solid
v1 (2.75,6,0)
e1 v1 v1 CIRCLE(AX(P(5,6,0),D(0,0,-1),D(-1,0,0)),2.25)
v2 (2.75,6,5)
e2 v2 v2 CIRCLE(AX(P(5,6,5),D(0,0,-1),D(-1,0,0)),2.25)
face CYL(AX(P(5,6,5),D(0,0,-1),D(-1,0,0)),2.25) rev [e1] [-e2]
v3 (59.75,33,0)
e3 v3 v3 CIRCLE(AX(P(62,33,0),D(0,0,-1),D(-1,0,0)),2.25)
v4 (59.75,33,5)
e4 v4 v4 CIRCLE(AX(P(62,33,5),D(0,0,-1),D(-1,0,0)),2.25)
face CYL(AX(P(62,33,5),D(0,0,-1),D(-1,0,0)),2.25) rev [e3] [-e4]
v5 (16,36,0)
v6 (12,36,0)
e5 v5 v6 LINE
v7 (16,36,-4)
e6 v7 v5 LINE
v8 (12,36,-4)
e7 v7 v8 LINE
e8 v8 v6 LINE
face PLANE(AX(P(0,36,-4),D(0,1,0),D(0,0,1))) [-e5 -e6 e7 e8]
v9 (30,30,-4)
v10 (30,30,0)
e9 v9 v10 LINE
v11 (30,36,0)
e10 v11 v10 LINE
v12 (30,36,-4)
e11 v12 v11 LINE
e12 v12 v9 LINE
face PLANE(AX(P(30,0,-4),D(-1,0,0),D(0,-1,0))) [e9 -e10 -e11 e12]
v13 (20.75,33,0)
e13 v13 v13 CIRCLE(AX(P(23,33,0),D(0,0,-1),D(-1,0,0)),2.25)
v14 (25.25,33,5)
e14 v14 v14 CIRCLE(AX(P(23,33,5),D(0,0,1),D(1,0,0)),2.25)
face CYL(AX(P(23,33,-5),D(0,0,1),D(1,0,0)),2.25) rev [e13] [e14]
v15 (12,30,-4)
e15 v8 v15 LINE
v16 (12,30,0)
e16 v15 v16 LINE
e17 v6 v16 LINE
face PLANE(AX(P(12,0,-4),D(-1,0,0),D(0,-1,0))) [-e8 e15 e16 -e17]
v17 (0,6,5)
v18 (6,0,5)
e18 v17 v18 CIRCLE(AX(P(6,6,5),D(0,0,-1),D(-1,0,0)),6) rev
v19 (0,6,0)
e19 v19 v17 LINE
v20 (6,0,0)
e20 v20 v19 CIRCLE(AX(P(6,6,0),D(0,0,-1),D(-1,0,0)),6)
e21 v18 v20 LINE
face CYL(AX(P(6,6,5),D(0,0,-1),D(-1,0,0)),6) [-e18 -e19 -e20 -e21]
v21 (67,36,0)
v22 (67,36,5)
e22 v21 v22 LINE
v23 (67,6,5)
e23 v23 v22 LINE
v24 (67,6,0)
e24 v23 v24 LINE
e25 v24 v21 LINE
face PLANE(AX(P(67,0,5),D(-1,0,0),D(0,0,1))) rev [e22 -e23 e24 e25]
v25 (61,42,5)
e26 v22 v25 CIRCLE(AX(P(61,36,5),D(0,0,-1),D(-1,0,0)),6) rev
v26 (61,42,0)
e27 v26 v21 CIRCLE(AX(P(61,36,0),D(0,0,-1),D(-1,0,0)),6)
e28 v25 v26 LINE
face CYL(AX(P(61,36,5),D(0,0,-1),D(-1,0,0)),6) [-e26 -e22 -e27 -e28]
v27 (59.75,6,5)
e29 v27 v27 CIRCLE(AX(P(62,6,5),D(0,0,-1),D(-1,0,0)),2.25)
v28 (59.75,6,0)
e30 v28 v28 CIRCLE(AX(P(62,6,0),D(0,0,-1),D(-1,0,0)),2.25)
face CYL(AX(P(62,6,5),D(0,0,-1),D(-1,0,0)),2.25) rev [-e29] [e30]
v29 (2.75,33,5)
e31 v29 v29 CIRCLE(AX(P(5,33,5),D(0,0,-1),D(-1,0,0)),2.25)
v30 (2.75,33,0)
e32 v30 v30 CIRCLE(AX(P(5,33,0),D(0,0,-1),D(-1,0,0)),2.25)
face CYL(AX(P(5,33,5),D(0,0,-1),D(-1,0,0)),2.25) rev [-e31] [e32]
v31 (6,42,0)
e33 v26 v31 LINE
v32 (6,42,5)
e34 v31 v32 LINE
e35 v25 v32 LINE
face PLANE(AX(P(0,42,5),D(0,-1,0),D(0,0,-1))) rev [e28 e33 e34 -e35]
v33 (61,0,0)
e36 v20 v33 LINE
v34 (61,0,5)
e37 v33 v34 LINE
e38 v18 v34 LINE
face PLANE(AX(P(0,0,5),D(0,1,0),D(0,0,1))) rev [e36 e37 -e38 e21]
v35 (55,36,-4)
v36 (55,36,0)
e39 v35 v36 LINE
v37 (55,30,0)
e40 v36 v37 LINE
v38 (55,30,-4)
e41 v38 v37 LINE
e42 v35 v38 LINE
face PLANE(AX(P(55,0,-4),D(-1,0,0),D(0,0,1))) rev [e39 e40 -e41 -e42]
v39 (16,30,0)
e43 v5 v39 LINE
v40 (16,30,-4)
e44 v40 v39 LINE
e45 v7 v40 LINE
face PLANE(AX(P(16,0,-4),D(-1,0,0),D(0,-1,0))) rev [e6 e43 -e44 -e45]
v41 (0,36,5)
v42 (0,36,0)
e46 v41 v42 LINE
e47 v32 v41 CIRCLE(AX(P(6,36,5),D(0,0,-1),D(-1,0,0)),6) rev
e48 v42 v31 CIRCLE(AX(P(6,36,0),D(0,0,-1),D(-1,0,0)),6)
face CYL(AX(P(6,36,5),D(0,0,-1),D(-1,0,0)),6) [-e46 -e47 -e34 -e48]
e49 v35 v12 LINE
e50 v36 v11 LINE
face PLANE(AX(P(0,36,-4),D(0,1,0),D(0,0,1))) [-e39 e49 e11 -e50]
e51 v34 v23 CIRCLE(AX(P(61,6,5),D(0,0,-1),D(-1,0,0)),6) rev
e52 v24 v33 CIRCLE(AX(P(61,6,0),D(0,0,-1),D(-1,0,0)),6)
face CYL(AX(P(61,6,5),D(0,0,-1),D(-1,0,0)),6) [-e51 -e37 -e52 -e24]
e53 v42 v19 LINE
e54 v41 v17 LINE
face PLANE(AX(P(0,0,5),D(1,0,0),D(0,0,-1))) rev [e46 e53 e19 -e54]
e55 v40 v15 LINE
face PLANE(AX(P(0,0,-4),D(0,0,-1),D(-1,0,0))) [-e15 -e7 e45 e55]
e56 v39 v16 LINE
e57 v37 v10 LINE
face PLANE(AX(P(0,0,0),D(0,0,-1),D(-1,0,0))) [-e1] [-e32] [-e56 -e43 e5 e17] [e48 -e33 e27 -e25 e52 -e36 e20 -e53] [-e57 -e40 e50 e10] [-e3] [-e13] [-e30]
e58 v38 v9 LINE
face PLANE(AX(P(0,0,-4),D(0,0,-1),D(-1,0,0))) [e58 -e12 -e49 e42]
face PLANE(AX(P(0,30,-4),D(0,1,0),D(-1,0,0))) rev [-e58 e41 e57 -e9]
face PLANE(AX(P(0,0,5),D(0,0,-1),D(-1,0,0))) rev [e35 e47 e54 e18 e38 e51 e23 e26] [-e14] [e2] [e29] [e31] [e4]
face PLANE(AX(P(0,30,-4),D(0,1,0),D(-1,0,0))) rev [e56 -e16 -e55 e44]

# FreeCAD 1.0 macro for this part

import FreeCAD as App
import Part
import Sketcher


def edges_at(feature, points):
    """Names of the edges that pass closest to the given points."""
    edges = feature.Shape.Edges
    near = lambda p: min(range(len(edges)), key=lambda i: edges[i].distToShape(Part.Vertex(*p))[0])
    return sorted({f"Edge{near(p) + 1}" for p in points})

doc = App.newDocument("Part")
body = doc.addObject("PartDesign::Body", "Body")

# Sketch on XY plane
sketch1 = body.newObject("Sketcher::SketchObject", "Sketch")
sketch1.AttachmentSupport = (doc.getObject("XY_Plane"), [""])
sketch1.MapMode = "FlatFace"
sketch1.addGeometry(Part.LineSegment(App.Vector(0, 42, 0), App.Vector(0, 0, 0)), False)
sketch1.addGeometry(Part.LineSegment(App.Vector(0, 0, 0), App.Vector(67, 0, 0)), False)
sketch1.addGeometry(Part.LineSegment(App.Vector(67, 0, 0), App.Vector(67, 42, 0)), False)
sketch1.addGeometry(Part.LineSegment(App.Vector(67, 42, 0), App.Vector(0, 42, 0)), False)
sketch1.addConstraint(Sketcher.Constraint("Coincident", 0, 2, 1, 1))
sketch1.addConstraint(Sketcher.Constraint("Coincident", 1, 2, 2, 1))
sketch1.addConstraint(Sketcher.Constraint("Coincident", 2, 2, 3, 1))
sketch1.addConstraint(Sketcher.Constraint("Coincident", 3, 2, 0, 1))
sketch1.addConstraint(Sketcher.Constraint("Vertical", 0))
sketch1.addConstraint(Sketcher.Constraint("Horizontal", 1))
sketch1.addConstraint(Sketcher.Constraint("Vertical", 2))
sketch1.addConstraint(Sketcher.Constraint("Horizontal", 3))
sketch1.addConstraint(Sketcher.Constraint("Coincident", 0, 2, -1, 1))
sketch1.addConstraint(Sketcher.Constraint("DistanceX", 1, 1, 1, 2, 67.0))
sketch1.addConstraint(Sketcher.Constraint("DistanceY", 0, 2, 0, 1, 42.0))
pad1 = body.newObject("PartDesign::Pad", "Pad")
pad1.Profile = sketch1
pad1.Length = 5

# Sketch on XY plane
sketch2 = body.newObject("Sketcher::SketchObject", "Sketch001")
sketch2.AttachmentSupport = (doc.getObject("XY_Plane"), [""])
sketch2.MapMode = "FlatFace"
sketch2.addGeometry(Part.Circle(App.Vector(62, 6, 0), App.Vector(0, 0, 1), 2.2), False)
sketch2.addGeometry(Part.Circle(App.Vector(62, 33, 0), App.Vector(0, 0, 1), 2.2), False)
sketch2.addGeometry(Part.Circle(App.Vector(5, 6, 0), App.Vector(0, 0, 1), 2.2), False)
sketch2.addGeometry(Part.Circle(App.Vector(5, 33, 0), App.Vector(0, 0, 1), 2.2), False)
sketch2.addConstraint(Sketcher.Constraint("Equal", 0, 1))
sketch2.addConstraint(Sketcher.Constraint("Equal", 1, 2))
sketch2.addConstraint(Sketcher.Constraint("Equal", 2, 3))
sketch2.addConstraint(Sketcher.Constraint("Horizontal", 0, 3, 2, 3))
sketch2.addConstraint(Sketcher.Constraint("Horizontal", 1, 3, 3, 3))
sketch2.addConstraint(Sketcher.Constraint("Vertical", 0, 3, 1, 3))
sketch2.addConstraint(Sketcher.Constraint("Vertical", 2, 3, 3, 3))
sketch2.addConstraint(Sketcher.Constraint("Diameter", 0, 4.5))
sketch2.addConstraint(Sketcher.Constraint("DistanceX", -1, 1, 0, 3, 62.0))
sketch2.addConstraint(Sketcher.Constraint("DistanceY", -1, 1, 0, 3, 6.0))
sketch2.addConstraint(Sketcher.Constraint("DistanceY", -1, 1, 1, 3, 33.0))
sketch2.addConstraint(Sketcher.Constraint("DistanceX", -1, 1, 2, 3, 5.0))
pocket1 = body.newObject("PartDesign::Pocket", "Pocket")
pocket1.Profile = sketch2
pocket1.Length = 5
pocket1.Reversed = True
doc.recompute()

fillet = body.newObject("PartDesign::Fillet", "Fillet")
fillet.Base = (pocket1, edges_at(pocket1, [
    (0, 42, 2.5),
    (67, 42, 2.5),
    (67, 0, 2.5),
    (0, 0, 2.5),
]))
fillet.Radius = 6

# Sketch on XY plane
sketch3 = body.newObject("Sketcher::SketchObject", "Sketch002")
sketch3.AttachmentSupport = (doc.getObject("XY_Plane"), [""])
sketch3.MapMode = "FlatFace"
sketch3.AttachmentOffset = App.Placement(App.Vector(0, 0, 5), App.Rotation())
sketch3.addGeometry(Part.Circle(App.Vector(23, 33, 0), App.Vector(0, 0, 1), 2.2), False)
sketch3.addConstraint(Sketcher.Constraint("Diameter", 0, 4.5))
sketch3.addConstraint(Sketcher.Constraint("DistanceX", -1, 1, 0, 3, 23.0))
sketch3.addConstraint(Sketcher.Constraint("DistanceY", -1, 1, 0, 3, 33.0))
pocket2 = body.newObject("PartDesign::Pocket", "Pocket001")
pocket2.Profile = sketch3
pocket2.Length = 10

# Sketch on XY plane
sketch4 = body.newObject("Sketcher::SketchObject", "Sketch003")
sketch4.AttachmentSupport = (doc.getObject("XY_Plane"), [""])
sketch4.MapMode = "FlatFace"
sketch4.addGeometry(Part.LineSegment(App.Vector(16, 36, 0), App.Vector(16, 30, 0)), False)
sketch4.addGeometry(Part.LineSegment(App.Vector(16, 30, 0), App.Vector(12, 30, 0)), False)
sketch4.addGeometry(Part.LineSegment(App.Vector(12, 30, 0), App.Vector(12, 36, 0)), False)
sketch4.addGeometry(Part.LineSegment(App.Vector(12, 36, 0), App.Vector(16, 36, 0)), False)
sketch4.addGeometry(Part.LineSegment(App.Vector(55, 36, 0), App.Vector(55, 30, 0)), False)
sketch4.addGeometry(Part.LineSegment(App.Vector(55, 30, 0), App.Vector(30, 30, 0)), False)
sketch4.addGeometry(Part.LineSegment(App.Vector(30, 30, 0), App.Vector(30, 36, 0)), False)
sketch4.addGeometry(Part.LineSegment(App.Vector(30, 36, 0), App.Vector(55, 36, 0)), False)
sketch4.addConstraint(Sketcher.Constraint("Coincident", 0, 2, 1, 1))
sketch4.addConstraint(Sketcher.Constraint("Coincident", 1, 2, 2, 1))
sketch4.addConstraint(Sketcher.Constraint("Coincident", 2, 2, 3, 1))
sketch4.addConstraint(Sketcher.Constraint("Coincident", 3, 2, 0, 1))
sketch4.addConstraint(Sketcher.Constraint("Coincident", 4, 2, 5, 1))
sketch4.addConstraint(Sketcher.Constraint("Coincident", 5, 2, 6, 1))
sketch4.addConstraint(Sketcher.Constraint("Coincident", 6, 2, 7, 1))
sketch4.addConstraint(Sketcher.Constraint("Coincident", 7, 2, 4, 1))
sketch4.addConstraint(Sketcher.Constraint("Vertical", 0))
sketch4.addConstraint(Sketcher.Constraint("Horizontal", 1))
sketch4.addConstraint(Sketcher.Constraint("Vertical", 2))
sketch4.addConstraint(Sketcher.Constraint("Horizontal", 3))
sketch4.addConstraint(Sketcher.Constraint("Vertical", 4))
sketch4.addConstraint(Sketcher.Constraint("Horizontal", 5))
sketch4.addConstraint(Sketcher.Constraint("Vertical", 6))
sketch4.addConstraint(Sketcher.Constraint("Horizontal", 7))
sketch4.addConstraint(Sketcher.Constraint("Horizontal", 1, 2, 4, 2))
sketch4.addConstraint(Sketcher.Constraint("Horizontal", 3, 2, 6, 2))
sketch4.addConstraint(Sketcher.Constraint("DistanceX", 1, 2, 1, 1, 4.0))
sketch4.addConstraint(Sketcher.Constraint("DistanceX", 5, 2, 5, 1, 25.0))
sketch4.addConstraint(Sketcher.Constraint("DistanceY", 0, 2, 0, 1, 6.0))
sketch4.addConstraint(Sketcher.Constraint("DistanceX", -1, 1, 0, 2, 16.0))
sketch4.addConstraint(Sketcher.Constraint("DistanceY", -1, 1, 0, 2, 30.0))
sketch4.addConstraint(Sketcher.Constraint("DistanceX", -1, 1, 4, 2, 55.0))
pad2 = body.newObject("PartDesign::Pad", "Pad001")
pad2.Profile = sketch4
pad2.Length = 4
pad2.Reversed = True

doc.recompute()
